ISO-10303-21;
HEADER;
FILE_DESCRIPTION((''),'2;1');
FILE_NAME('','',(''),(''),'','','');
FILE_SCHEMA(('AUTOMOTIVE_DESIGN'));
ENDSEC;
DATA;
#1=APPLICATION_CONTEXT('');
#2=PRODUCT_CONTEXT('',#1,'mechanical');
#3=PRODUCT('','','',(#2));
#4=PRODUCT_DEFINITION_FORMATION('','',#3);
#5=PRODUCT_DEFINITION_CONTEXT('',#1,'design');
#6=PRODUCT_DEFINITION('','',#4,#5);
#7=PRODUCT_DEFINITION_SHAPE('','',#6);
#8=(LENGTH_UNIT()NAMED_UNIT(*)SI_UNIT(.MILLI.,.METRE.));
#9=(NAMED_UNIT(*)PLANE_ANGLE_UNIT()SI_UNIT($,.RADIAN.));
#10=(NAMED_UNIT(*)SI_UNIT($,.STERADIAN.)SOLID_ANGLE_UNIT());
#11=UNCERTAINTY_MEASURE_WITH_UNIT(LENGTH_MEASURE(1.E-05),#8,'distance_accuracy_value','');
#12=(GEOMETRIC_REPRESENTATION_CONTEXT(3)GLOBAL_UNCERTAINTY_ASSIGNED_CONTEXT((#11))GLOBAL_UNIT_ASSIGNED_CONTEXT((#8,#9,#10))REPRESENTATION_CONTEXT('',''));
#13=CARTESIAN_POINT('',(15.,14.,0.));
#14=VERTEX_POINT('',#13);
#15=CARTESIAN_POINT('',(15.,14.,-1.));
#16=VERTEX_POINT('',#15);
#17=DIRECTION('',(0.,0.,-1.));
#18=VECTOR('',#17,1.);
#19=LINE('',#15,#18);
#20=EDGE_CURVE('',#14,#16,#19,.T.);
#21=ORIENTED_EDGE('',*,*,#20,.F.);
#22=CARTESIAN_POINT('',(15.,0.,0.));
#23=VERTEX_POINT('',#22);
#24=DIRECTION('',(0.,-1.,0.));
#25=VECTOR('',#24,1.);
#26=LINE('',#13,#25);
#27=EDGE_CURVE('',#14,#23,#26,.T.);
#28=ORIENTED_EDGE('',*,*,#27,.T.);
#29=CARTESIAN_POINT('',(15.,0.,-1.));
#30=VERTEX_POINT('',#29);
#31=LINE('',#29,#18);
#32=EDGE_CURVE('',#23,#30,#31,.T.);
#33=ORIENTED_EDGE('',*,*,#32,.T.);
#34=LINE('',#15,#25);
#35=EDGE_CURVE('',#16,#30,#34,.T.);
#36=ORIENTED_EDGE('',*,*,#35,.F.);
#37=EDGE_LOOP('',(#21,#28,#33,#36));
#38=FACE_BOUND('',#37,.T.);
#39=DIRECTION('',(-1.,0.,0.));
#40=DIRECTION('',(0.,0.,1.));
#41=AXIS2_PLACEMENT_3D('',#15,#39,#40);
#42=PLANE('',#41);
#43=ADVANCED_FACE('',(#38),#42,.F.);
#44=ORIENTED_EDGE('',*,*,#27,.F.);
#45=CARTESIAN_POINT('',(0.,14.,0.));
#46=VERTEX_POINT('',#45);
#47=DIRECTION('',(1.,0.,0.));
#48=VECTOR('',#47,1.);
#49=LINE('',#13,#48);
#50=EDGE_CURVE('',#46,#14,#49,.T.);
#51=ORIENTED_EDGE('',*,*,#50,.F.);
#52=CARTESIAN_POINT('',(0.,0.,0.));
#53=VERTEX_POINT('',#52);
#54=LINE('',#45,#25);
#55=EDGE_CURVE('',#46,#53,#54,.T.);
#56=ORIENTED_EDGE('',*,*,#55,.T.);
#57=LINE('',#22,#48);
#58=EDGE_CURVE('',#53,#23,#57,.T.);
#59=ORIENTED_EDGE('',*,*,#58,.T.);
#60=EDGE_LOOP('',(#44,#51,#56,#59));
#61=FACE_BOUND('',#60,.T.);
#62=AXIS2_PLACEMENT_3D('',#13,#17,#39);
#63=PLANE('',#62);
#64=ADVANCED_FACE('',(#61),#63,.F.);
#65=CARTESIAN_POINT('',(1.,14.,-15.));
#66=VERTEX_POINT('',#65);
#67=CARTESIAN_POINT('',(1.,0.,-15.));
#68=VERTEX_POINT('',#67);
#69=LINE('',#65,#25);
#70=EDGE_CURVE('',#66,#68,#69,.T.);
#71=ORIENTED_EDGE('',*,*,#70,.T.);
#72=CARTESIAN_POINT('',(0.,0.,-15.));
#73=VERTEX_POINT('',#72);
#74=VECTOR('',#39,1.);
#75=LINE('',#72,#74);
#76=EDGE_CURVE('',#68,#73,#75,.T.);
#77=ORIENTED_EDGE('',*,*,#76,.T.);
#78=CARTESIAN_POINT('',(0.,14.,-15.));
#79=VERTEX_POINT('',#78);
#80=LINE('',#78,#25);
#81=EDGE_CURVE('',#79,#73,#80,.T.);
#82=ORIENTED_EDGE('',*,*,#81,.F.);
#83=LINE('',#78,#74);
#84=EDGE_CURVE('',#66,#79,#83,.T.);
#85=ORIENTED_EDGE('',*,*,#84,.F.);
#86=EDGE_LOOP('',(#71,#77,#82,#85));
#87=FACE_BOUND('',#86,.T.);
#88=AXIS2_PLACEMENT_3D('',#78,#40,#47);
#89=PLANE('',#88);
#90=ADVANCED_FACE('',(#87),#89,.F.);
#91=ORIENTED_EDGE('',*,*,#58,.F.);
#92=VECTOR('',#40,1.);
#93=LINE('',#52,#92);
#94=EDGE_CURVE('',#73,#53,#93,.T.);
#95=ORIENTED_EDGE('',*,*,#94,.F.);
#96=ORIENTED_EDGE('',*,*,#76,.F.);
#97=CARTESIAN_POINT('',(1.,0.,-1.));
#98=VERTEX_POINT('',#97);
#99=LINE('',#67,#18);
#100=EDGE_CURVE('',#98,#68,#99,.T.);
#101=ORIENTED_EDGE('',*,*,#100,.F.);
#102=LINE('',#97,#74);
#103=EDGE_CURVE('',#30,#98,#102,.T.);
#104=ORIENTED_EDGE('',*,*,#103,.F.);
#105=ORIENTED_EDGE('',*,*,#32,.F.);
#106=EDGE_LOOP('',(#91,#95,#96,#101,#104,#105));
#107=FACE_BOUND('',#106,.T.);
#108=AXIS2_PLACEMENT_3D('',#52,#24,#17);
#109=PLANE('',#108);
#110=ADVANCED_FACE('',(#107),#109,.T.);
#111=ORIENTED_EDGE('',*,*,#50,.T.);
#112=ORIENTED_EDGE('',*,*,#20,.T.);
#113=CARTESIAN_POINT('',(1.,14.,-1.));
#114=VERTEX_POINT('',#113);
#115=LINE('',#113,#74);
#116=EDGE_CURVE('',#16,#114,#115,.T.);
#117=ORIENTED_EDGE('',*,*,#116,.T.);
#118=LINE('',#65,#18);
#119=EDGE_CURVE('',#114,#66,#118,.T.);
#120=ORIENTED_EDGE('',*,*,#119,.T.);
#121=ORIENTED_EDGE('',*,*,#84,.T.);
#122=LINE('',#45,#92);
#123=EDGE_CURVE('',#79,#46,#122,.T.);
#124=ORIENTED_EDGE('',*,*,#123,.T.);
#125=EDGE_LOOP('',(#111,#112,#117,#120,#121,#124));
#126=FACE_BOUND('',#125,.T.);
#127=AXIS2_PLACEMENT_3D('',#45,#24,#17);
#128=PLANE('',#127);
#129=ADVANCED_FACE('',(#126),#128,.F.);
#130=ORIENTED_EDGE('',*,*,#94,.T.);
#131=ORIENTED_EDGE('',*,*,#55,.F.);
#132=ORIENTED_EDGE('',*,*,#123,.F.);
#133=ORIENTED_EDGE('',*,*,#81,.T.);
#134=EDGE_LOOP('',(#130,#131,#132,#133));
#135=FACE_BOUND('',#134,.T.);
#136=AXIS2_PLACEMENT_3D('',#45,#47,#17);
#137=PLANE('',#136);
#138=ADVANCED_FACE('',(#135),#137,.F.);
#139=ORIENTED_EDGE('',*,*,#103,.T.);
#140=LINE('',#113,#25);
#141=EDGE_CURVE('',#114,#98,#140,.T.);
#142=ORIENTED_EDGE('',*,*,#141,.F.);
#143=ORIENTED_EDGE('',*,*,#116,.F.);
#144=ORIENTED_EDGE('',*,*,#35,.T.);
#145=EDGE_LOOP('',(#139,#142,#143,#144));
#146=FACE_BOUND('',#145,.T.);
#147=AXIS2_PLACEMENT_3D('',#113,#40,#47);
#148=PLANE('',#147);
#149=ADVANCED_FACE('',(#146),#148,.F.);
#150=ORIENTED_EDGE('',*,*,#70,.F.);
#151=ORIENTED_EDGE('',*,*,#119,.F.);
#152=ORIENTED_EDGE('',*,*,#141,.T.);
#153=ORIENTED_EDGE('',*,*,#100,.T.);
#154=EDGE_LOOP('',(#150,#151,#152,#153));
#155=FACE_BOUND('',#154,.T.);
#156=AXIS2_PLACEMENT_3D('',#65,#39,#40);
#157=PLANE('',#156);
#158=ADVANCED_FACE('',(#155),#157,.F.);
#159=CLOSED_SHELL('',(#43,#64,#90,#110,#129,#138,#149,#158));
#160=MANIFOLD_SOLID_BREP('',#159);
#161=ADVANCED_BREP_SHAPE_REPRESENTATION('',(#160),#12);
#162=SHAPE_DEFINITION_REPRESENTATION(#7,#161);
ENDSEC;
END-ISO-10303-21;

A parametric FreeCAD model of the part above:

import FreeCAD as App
import Part
import Sketcher

doc = App.newDocument("Part")
body = doc.addObject("PartDesign::Body", "Body")

sketch1 = doc.addObject("Sketcher::SketchObject", "Sketch")
body.addObject(sketch1)
sketch1.AttachmentSupport = (doc.XZ_Plane, [""])
sketch1.MapMode = "FlatFace"
sketch1.addGeometry(Part.LineSegment(App.Vector(0, -15, 0), App.Vector(0, 0, 0)), False)
sketch1.addGeometry(Part.LineSegment(App.Vector(0, 0, 0), App.Vector(15, 0, 0)), False)
sketch1.addGeometry(Part.LineSegment(App.Vector(15, 0, 0), App.Vector(15, -1, 0)), False)
sketch1.addGeometry(Part.LineSegment(App.Vector(15, -1, 0), App.Vector(1, -1, 0)), False)
sketch1.addGeometry(Part.LineSegment(App.Vector(1, -1, 0), App.Vector(1, -15, 0)), False)
sketch1.addGeometry(Part.LineSegment(App.Vector(1, -15, 0), App.Vector(0, -15, 0)), False)
sketch1.addConstraint(Sketcher.Constraint("Coincident", 0, 2, 1, 1))
sketch1.addConstraint(Sketcher.Constraint("Coincident", 1, 2, 2, 1))
sketch1.addConstraint(Sketcher.Constraint("Coincident", 2, 2, 3, 1))
sketch1.addConstraint(Sketcher.Constraint("Coincident", 3, 2, 4, 1))
sketch1.addConstraint(Sketcher.Constraint("Coincident", 4, 2, 5, 1))
sketch1.addConstraint(Sketcher.Constraint("Coincident", 5, 2, 0, 1))
sketch1.addConstraint(Sketcher.Constraint("Vertical", 0))
sketch1.addConstraint(Sketcher.Constraint("Horizontal", 1))
sketch1.addConstraint(Sketcher.Constraint("Vertical", 2))
sketch1.addConstraint(Sketcher.Constraint("Horizontal", 3))
sketch1.addConstraint(Sketcher.Constraint("Vertical", 4))
sketch1.addConstraint(Sketcher.Constraint("Horizontal", 5))
sketch1.addConstraint(Sketcher.Constraint("Coincident", 0, 2, -1, 1))
sketch1.addConstraint(Sketcher.Constraint("Equal", 1, 0))
sketch1.addConstraint(Sketcher.Constraint("Equal", 5, 2))
sketch1.addConstraint(Sketcher.Constraint("DistanceX", 1, 1, 1, 2, 15.0))
sketch1.addConstraint(Sketcher.Constraint("DistanceX", 3, 2, 3, 1, 14.0))
pad1 = doc.addObject("PartDesign::Pad", "Pad")
body.addObject(pad1)
pad1.Profile = sketch1
pad1.Length = 14
pad1.Reversed = True

doc.recompute()
